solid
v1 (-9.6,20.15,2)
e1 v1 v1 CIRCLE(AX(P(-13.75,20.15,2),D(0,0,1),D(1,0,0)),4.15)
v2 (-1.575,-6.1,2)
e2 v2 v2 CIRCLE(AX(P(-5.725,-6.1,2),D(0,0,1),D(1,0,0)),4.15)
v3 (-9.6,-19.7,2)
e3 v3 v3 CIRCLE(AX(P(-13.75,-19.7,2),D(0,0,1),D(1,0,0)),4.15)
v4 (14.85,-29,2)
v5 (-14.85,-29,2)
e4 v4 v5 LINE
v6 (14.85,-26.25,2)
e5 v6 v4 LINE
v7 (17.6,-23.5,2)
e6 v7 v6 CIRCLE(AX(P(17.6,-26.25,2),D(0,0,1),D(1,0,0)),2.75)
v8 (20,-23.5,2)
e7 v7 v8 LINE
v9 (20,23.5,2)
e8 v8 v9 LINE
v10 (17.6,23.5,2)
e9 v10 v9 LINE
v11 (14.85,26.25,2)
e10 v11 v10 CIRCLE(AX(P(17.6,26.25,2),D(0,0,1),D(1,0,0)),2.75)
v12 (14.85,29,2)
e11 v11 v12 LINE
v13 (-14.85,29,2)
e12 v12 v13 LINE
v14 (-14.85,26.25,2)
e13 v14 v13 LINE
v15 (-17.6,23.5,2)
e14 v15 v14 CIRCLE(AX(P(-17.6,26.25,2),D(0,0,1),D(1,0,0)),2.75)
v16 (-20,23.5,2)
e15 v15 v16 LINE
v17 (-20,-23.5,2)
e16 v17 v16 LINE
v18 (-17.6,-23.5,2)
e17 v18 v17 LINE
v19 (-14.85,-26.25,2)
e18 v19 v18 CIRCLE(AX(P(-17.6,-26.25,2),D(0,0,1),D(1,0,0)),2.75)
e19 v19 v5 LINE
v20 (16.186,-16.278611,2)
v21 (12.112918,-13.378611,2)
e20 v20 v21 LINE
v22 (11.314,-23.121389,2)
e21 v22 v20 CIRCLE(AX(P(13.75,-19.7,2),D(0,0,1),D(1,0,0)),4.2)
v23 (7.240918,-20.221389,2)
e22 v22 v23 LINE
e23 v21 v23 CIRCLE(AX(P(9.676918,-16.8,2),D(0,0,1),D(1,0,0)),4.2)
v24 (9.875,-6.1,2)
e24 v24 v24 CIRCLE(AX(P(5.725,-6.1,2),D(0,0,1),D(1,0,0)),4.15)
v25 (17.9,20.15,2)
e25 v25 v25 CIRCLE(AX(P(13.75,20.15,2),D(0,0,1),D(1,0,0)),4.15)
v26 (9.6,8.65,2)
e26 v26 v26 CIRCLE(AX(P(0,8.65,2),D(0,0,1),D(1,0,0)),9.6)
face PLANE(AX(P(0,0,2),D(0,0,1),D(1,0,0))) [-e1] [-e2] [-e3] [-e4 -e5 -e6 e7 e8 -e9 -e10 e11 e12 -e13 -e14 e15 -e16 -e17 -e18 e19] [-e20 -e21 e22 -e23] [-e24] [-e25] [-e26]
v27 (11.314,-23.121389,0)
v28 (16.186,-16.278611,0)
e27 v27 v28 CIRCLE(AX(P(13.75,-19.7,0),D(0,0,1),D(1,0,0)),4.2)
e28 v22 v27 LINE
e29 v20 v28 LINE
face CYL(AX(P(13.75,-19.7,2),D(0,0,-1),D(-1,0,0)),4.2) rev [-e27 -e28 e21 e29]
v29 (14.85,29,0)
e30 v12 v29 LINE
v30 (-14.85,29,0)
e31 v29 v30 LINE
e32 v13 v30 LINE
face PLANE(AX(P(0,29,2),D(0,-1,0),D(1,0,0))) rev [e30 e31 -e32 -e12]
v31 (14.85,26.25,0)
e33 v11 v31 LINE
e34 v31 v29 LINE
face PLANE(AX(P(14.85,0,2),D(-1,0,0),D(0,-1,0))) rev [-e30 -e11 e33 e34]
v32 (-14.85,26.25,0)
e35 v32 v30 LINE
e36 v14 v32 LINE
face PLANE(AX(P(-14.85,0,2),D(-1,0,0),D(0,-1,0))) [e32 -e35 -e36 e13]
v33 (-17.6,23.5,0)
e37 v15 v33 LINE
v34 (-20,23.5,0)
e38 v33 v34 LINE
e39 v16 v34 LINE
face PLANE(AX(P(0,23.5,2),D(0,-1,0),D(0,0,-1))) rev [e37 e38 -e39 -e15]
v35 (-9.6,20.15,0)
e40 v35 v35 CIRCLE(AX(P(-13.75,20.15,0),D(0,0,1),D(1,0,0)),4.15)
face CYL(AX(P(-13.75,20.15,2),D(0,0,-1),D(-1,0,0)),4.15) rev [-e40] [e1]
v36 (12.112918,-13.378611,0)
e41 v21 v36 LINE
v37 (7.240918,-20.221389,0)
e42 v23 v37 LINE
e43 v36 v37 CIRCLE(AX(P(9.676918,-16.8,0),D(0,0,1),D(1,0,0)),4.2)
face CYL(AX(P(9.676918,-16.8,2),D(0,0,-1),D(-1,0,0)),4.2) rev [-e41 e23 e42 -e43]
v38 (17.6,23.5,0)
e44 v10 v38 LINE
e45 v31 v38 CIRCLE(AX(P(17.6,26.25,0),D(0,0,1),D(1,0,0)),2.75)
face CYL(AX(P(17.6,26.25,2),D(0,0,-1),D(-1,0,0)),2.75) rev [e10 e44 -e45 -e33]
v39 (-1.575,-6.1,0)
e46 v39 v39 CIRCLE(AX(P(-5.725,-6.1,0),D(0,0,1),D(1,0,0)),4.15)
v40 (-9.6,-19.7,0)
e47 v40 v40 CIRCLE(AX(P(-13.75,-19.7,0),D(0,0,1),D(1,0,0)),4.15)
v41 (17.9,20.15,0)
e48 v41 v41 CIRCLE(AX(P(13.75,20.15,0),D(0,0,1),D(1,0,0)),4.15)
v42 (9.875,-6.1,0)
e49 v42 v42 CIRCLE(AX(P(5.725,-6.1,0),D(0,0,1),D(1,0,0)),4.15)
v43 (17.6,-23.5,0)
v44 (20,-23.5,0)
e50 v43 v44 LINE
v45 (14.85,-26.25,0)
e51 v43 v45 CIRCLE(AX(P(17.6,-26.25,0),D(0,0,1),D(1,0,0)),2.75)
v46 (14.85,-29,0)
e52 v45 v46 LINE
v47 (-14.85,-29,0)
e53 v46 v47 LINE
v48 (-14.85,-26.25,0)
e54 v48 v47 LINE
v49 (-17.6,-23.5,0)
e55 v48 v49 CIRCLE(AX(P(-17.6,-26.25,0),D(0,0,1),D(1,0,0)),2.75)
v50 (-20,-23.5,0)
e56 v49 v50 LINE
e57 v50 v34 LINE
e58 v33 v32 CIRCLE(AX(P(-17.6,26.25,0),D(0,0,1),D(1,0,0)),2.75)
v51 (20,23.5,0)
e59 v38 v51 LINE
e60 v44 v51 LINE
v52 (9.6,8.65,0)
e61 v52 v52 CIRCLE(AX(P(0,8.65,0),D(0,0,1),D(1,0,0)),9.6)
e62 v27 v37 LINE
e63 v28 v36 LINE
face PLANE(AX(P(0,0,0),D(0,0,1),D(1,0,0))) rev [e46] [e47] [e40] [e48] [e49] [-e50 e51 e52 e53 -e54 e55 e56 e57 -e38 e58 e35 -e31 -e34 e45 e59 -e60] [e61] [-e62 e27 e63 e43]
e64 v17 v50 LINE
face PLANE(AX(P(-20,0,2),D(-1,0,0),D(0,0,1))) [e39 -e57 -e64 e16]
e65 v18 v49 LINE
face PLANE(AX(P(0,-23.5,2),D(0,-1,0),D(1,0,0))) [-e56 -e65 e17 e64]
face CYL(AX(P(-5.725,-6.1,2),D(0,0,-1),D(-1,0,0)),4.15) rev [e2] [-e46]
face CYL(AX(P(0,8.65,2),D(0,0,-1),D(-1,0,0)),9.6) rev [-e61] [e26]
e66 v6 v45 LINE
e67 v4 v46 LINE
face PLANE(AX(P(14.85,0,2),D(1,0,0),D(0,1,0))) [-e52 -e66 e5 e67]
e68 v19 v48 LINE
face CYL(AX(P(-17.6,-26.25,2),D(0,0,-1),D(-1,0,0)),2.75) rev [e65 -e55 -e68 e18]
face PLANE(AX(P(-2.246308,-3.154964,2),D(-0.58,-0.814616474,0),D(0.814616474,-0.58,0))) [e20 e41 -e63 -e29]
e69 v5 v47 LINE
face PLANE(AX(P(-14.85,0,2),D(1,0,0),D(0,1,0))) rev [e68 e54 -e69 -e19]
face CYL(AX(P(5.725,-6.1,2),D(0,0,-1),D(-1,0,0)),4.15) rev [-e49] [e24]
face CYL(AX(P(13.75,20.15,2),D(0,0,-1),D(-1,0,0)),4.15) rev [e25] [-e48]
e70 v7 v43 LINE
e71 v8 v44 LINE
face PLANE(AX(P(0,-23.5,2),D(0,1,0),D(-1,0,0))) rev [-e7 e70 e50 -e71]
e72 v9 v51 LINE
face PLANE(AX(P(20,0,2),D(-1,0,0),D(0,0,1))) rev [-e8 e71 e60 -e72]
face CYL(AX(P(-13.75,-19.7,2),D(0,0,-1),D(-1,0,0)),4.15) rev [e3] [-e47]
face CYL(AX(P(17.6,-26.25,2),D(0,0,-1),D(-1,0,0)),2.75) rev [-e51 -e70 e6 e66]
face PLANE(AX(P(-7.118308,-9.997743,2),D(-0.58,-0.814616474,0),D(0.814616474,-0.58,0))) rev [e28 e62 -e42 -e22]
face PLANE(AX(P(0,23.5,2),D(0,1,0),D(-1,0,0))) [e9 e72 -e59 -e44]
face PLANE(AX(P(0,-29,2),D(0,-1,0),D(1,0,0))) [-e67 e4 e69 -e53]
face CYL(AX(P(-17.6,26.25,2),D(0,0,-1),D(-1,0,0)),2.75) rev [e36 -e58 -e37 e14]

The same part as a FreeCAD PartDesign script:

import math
import FreeCAD as App
import Part
import Sketcher
Q = App.Units.Quantity

doc = App.newDocument("Part")
params = doc.addObject("Spreadsheet::Sheet", "Params")
for row, (alias, value) in enumerate([
    ("sketch1_diameter", "8.3 mm"),
    ("sketch1_diameter2", "19.2 mm"),
    ("sketch1_radius", "4.2 mm"),
    ("sketch1_height", "47 mm"),
    ("sketch1_radius2", "2.75 mm"),
    ("pad1_length", "2 mm"),
], start=1):
    params.set(f"A{row}", alias)
    params.set(f"B{row}", "=" + value)
    params.setAlias(f"B{row}", alias)

body = doc.addObject("PartDesign::Body", "Body")

sketch1 = body.newObject("Sketcher::SketchObject", "Sketch")
sketch1.AttachmentSupport = (doc.getObject("XY_Plane"), [""])
sketch1.MapMode = "FlatFace"
sketch1.addGeometry(Part.LineSegment(App.Vector(-14.85, 29, 0), App.Vector(-14.85, 26.25, 0)), False)
sketch1.addGeometry(Part.ArcOfCircle(Part.Circle(App.Vector(-17.6, 26.25, 0), App.Vector(0, 0, 1), 2.75), math.radians(-90), math.radians(0)), False)
sketch1.addGeometry(Part.LineSegment(App.Vector(-17.6, 23.5, 0), App.Vector(-20, 23.5, 0)), False)
sketch1.addGeometry(Part.LineSegment(App.Vector(-20, 23.5, 0), App.Vector(-20, -23.5, 0)), False)
sketch1.addGeometry(Part.LineSegment(App.Vector(-20, -23.5, 0), App.Vector(-17.6, -23.5, 0)), False)
sketch1.addGeometry(Part.ArcOfCircle(Part.Circle(App.Vector(-17.6, -26.25, 0), App.Vector(0, 0, 1), 2.75), math.radians(0), math.radians(90)), False)
sketch1.addGeometry(Part.LineSegment(App.Vector(-14.85, -26.25, 0), App.Vector(-14.85, -29, 0)), False)
sketch1.addGeometry(Part.LineSegment(App.Vector(-14.85, -29, 0), App.Vector(14.85, -29, 0)), False)
sketch1.addGeometry(Part.LineSegment(App.Vector(14.85, -29, 0), App.Vector(14.85, -26.25, 0)), False)
sketch1.addGeometry(Part.ArcOfCircle(Part.Circle(App.Vector(17.6, -26.25, 0), App.Vector(0, 0, 1), 2.75), math.radians(90), math.radians(180)), False)
sketch1.addGeometry(Part.LineSegment(App.Vector(17.6, -23.5, 0), App.Vector(20, -23.5, 0)), False)
sketch1.addGeometry(Part.LineSegment(App.Vector(20, -23.5, 0), App.Vector(20, 23.5, 0)), False)
sketch1.addGeometry(Part.LineSegment(App.Vector(20, 23.5, 0), App.Vector(17.6, 23.5, 0)), False)
sketch1.addGeometry(Part.ArcOfCircle(Part.Circle(App.Vector(17.6, 26.25, 0), App.Vector(0, 0, 1), 2.75), math.radians(-180), math.radians(-90)), False)
sketch1.addGeometry(Part.LineSegment(App.Vector(14.85, 26.25, 0), App.Vector(14.85, 29, 0)), False)
sketch1.addGeometry(Part.LineSegment(App.Vector(14.85, 29, 0), App.Vector(-14.85, 29, 0)), False)
sketch1.addGeometry(Part.Circle(App.Vector(-13.75, -19.7, 0), App.Vector(0, 0, 1), 4.15), False)
sketch1.addGeometry(Part.Circle(App.Vector(-5.725, -6.1, 0), App.Vector(0, 0, 1), 4.15), False)
sketch1.addGeometry(Part.LineSegment(App.Vector(12.112918, -13.378611, 0), App.Vector(16.186, -16.278611, 0)), False)
sketch1.addGeometry(Part.ArcOfCircle(Part.Circle(App.Vector(13.75, -19.7, 0), App.Vector(0, 0, 1), 4.2), math.radians(-125.450543), math.radians(54.549457)), False)
sketch1.addGeometry(Part.LineSegment(App.Vector(11.314, -23.121389, 0), App.Vector(7.240918, -20.221389, 0)), False)
sketch1.addGeometry(Part.ArcOfCircle(Part.Circle(App.Vector(9.676918, -16.8, 0), App.Vector(0, 0, 1), 4.2), math.radians(54.549457), math.radians(234.549457)), False)
sketch1.addGeometry(Part.Circle(App.Vector(5.725, -6.1, 0), App.Vector(0, 0, 1), 4.15), False)
sketch1.addGeometry(Part.Circle(App.Vector(0, 8.65, 0), App.Vector(0, 0, 1), 9.6), False)
sketch1.addGeometry(Part.Circle(App.Vector(-13.75, 20.15, 0), App.Vector(0, 0, 1), 4.15), False)
sketch1.addGeometry(Part.Circle(App.Vector(13.75, 20.15, 0), App.Vector(0, 0, 1), 4.15), False)
sketch1.addConstraint(Sketcher.Constraint("Tangent", 0, 2, 1, 2))
sketch1.addConstraint(Sketcher.Constraint("Tangent", 1, 1, 2, 1))
sketch1.addConstraint(Sketcher.Constraint("Coincident", 2, 2, 3, 1))
sketch1.addConstraint(Sketcher.Constraint("Coincident", 3, 2, 4, 1))
sketch1.addConstraint(Sketcher.Constraint("Tangent", 4, 2, 5, 2))
sketch1.addConstraint(Sketcher.Constraint("Tangent", 5, 1, 6, 1))
sketch1.addConstraint(Sketcher.Constraint("Coincident", 6, 2, 7, 1))
sketch1.addConstraint(Sketcher.Constraint("Coincident", 7, 2, 8, 1))
sketch1.addConstraint(Sketcher.Constraint("Tangent", 8, 2, 9, 2))
sketch1.addConstraint(Sketcher.Constraint("Tangent", 9, 1, 10, 1))
sketch1.addConstraint(Sketcher.Constraint("Coincident", 10, 2, 11, 1))
sketch1.addConstraint(Sketcher.Constraint("Coincident", 11, 2, 12, 1))
sketch1.addConstraint(Sketcher.Constraint("Tangent", 12, 2, 13, 2))
sketch1.addConstraint(Sketcher.Constraint("Tangent", 13, 1, 14, 1))
sketch1.addConstraint(Sketcher.Constraint("Coincident", 14, 2, 15, 1))
sketch1.addConstraint(Sketcher.Constraint("Coincident", 15, 2, 0, 1))
sketch1.addConstraint(Sketcher.Constraint("Tangent", 18, 2, 19, 2))
sketch1.addConstraint(Sketcher.Constraint("Tangent", 19, 1, 20, 1))
sketch1.addConstraint(Sketcher.Constraint("Tangent", 20, 2, 21, 2))
sketch1.addConstraint(Sketcher.Constraint("Tangent", 21, 1, 18, 1))
sketch1.addConstraint(Sketcher.Constraint("Vertical", 0))
sketch1.addConstraint(Sketcher.Constraint("Horizontal", 2))
sketch1.addConstraint(Sketcher.Constraint("Vertical", 3))
sketch1.addConstraint(Sketcher.Constraint("Horizontal", 4))
sketch1.addConstraint(Sketcher.Constraint("Vertical", 6))
sketch1.addConstraint(Sketcher.Constraint("Horizontal", 7))
sketch1.addConstraint(Sketcher.Constraint("Vertical", 8))
sketch1.addConstraint(Sketcher.Constraint("Horizontal", 10))
sketch1.addConstraint(Sketcher.Constraint("Vertical", 11))
sketch1.addConstraint(Sketcher.Constraint("Horizontal", 12))
sketch1.addConstraint(Sketcher.Constraint("Vertical", 14))
sketch1.addConstraint(Sketcher.Constraint("Horizontal", 15))
sketch1.addConstraint(Sketcher.Constraint("Equal", 1, 5))
sketch1.addConstraint(Sketcher.Constraint("Equal", 5, 9))
sketch1.addConstraint(Sketcher.Constraint("Equal", 9, 13))
sketch1.addConstraint(Sketcher.Constraint("Equal", 16, 17))
sketch1.addConstraint(Sketcher.Constraint("Equal", 19, 21))
sketch1.addConstraint(Sketcher.Constraint("Equal", 17, 22))
sketch1.addConstraint(Sketcher.Constraint("Equal", 22, 24))
sketch1.addConstraint(Sketcher.Constraint("Equal", 24, 25))
sketch1.addConstraint(Sketcher.Constraint("Symmetric", 1, 3, 9, 3, -1, 1))
sketch1.addConstraint(Sketcher.Constraint("Symmetric", 5, 3, 13, 3, -1, 1))
sketch1.addConstraint(Sketcher.Constraint("Symmetric", 5, 3, 9, 3, -2))
sketch1.addConstraint(Sketcher.Constraint("Symmetric", 16, 3, 19, 3, -2))
sketch1.addConstraint(Sketcher.Constraint("Symmetric", 17, 3, 22, 3, -2))
sketch1.addConstraint(Sketcher.Constraint("Symmetric", 24, 3, 25, 3, -2))
sketch1.addConstraint(Sketcher.Constraint("PointOnObject", 23, 3, -2))
sketch1.addConstraint(Sketcher.Constraint("Vertical", 16, 3, 24, 3))
sketch1.addConstraint(Sketcher.Constraint("Equal", 4, 10))
sketch1.addConstraint(Sketcher.Constraint("Equal", 0, 6))
sketch1.addConstraint(Sketcher.Constraint("Diameter", 16, Q("8.3 mm")))
sketch1.addConstraint(Sketcher.Constraint("Diameter", 23, Q("19.2 mm")))
sketch1.addConstraint(Sketcher.Constraint("Radius", 19, Q("4.2 mm")))
sketch1.addConstraint(Sketcher.Constraint("DistanceY", 3, 2, 3, 1, Q("47 mm")))
sketch1.addConstraint(Sketcher.Constraint("Radius", 1, Q("2.75 mm")))
sketch1.addConstraint(Sketcher.Constraint("Distance", 18, Q("5 mm")))
sketch1.addConstraint(Sketcher.Constraint("DistanceX", 2, 2, 2, 1, Q("2.4 mm")))
sketch1.addConstraint(Sketcher.Constraint("DistanceX", 7, 1, 7, 2, Q("29.7 mm")))
sketch1.addConstraint(Sketcher.Constraint("DistanceY", 6, 2, -1, 1, Q("29 mm")))
sketch1.addConstraint(Sketcher.Constraint("DistanceY", 16, 3, -1, 1, Q("19.7 mm")))
sketch1.addConstraint(Sketcher.Constraint("DistanceY", 17, 3, -1, 1, Q("6.1 mm")))
sketch1.addConstraint(Sketcher.Constraint("DistanceY", 21, 3, -1, 1, Q("16.8 mm")))
sketch1.addConstraint(Sketcher.Constraint("DistanceX", 16, 3, 19, 3, Q("27.5 mm")))
sketch1.addConstraint(Sketcher.Constraint("DistanceY", 23, 3, 1, 3, Q("17.6 mm")))
sketch1.addConstraint(Sketcher.Constraint("DistanceY", 24, 3, 1, 3, Q("6.1 mm")))
sketch1.addConstraint(Sketcher.Constraint("DistanceX", 17, 3, 22, 3, Q("11.45 mm")))
sketch1.setExpression("Constraints[50]", "Params.sketch1_diameter")
sketch1.setExpression("Constraints[51]", "Params.sketch1_diameter2")
sketch1.setExpression("Constraints[52]", "Params.sketch1_radius")
sketch1.setExpression("Constraints[53]", "Params.sketch1_height")
sketch1.setExpression("Constraints[54]", "Params.sketch1_radius2")
pad1 = body.newObject("PartDesign::Pad", "Pad")
pad1.Profile = sketch1
pad1.setExpression("Length", "Params.pad1_length")

doc.recompute()
